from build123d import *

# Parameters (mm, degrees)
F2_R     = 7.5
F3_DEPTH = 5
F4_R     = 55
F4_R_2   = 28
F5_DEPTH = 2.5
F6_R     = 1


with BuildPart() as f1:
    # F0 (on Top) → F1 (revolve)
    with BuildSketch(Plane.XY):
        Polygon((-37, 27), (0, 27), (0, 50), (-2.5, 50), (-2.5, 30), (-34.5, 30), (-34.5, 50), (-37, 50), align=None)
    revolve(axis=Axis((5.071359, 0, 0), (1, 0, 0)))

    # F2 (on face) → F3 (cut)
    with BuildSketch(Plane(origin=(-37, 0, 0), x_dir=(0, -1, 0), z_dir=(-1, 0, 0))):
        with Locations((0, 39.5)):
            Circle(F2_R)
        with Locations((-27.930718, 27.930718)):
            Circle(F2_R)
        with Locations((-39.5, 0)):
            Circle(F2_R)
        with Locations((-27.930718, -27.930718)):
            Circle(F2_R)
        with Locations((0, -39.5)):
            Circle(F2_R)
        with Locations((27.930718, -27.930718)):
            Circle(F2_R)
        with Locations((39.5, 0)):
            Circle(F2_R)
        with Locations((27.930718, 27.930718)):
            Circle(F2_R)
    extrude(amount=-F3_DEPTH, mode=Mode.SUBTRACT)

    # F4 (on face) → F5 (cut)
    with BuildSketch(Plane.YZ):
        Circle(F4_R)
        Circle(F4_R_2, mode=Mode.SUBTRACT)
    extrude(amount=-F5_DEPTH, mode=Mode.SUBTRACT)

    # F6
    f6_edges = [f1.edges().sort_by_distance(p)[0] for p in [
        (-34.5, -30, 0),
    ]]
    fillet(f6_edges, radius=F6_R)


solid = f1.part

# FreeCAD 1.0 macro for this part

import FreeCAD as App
import Part
import Sketcher

V = App.Vector


def edges_at(feature, points):
    """Names of the edges that pass closest to the given points."""
    edges = feature.Shape.Edges
    near = lambda p: min(range(len(edges)), key=lambda i: edges[i].distToShape(Part.Vertex(*p))[0])
    return sorted({f"Edge{near(p) + 1}" for p in points})

doc = App.newDocument("Part")
params = doc.addObject("Spreadsheet::Sheet", "Params")
for row, (alias, value) in enumerate([
    ("sketch1_width", "37 mm"),
    ("sketch1_width2", "32 mm"),
    ("sketch1_height", "23 mm"),
    ("sketch1_height2", "20 mm"),
    ("revolution_angle", "360 deg"),
    ("sketch2_diameter", "15 mm"),
    ("pocket1_length", "5 mm"),
    ("sketch3_diameter", "110 mm"),
    ("sketch3_diameter2", "56 mm"),
    ("pocket2_length", "2.5 mm"),
    ("fillet_radius", "1 mm"),
], start=1):
    params.set(f"A{row}", alias)
    params.set(f"B{row}", "=" + value)
    params.setAlias(f"B{row}", alias)

body = doc.addObject("PartDesign::Body", "Body")

# Sketch on XY plane
sketch1 = body.newObject("Sketcher::SketchObject", "Sketch")
sketch1.AttachmentSupport = (doc.getObject("XY_Plane"), [""])
sketch1.MapMode = "FlatFace"
sketch1.addGeometry(Part.LineSegment(V(-37, 27, 0), V(0, 27, 0)), False)
sketch1.addGeometry(Part.LineSegment(V(0, 27, 0), V(0, 50, 0)), False)
sketch1.addGeometry(Part.LineSegment(V(0, 50, 0), V(-2.5, 50, 0)), False)
sketch1.addGeometry(Part.LineSegment(V(-2.5, 50, 0), V(-2.5, 30, 0)), False)
sketch1.addGeometry(Part.LineSegment(V(-2.5, 30, 0), V(-34.5, 30, 0)), False)
sketch1.addGeometry(Part.LineSegment(V(-34.5, 30, 0), V(-34.5, 50, 0)), False)
sketch1.addGeometry(Part.LineSegment(V(-34.5, 50, 0), V(-37, 50, 0)), False)
sketch1.addGeometry(Part.LineSegment(V(-37, 50, 0), V(-37, 27, 0)), False)
sketch1.addConstraint(Sketcher.Constraint("Coincident", 0, 2, 1, 1))
sketch1.addConstraint(Sketcher.Constraint("Coincident", 1, 2, 2, 1))
sketch1.addConstraint(Sketcher.Constraint("Coincident", 2, 2, 3, 1))
sketch1.addConstraint(Sketcher.Constraint("Coincident", 3, 2, 4, 1))
sketch1.addConstraint(Sketcher.Constraint("Coincident", 4, 2, 5, 1))
sketch1.addConstraint(Sketcher.Constraint("Coincident", 5, 2, 6, 1))
sketch1.addConstraint(Sketcher.Constraint("Coincident", 6, 2, 7, 1))
sketch1.addConstraint(Sketcher.Constraint("Coincident", 7, 2, 0, 1))
sketch1.addConstraint(Sketcher.Constraint("Horizontal", 0))
sketch1.addConstraint(Sketcher.Constraint("Vertical", 1))
sketch1.addConstraint(Sketcher.Constraint("Horizontal", 2))
sketch1.addConstraint(Sketcher.Constraint("Vertical", 3))
sketch1.addConstraint(Sketcher.Constraint("Horizontal", 4))
sketch1.addConstraint(Sketcher.Constraint("Vertical", 5))
sketch1.addConstraint(Sketcher.Constraint("Horizontal", 6))
sketch1.addConstraint(Sketcher.Constraint("Vertical", 7))
sketch1.addConstraint(Sketcher.Constraint("PointOnObject", 0, 2, -2))
sketch1.addConstraint(Sketcher.Constraint("Horizontal", 2, 2, 5, 2))
sketch1.addConstraint(Sketcher.Constraint("Equal", 2, 6))
sketch1.addConstraint(Sketcher.Constraint("DistanceX", 0, 1, 0, 2, 37.0))
sketch1.addConstraint(Sketcher.Constraint("DistanceX", 4, 2, 4, 1, 32.0))
sketch1.addConstraint(Sketcher.Constraint("DistanceY", 1, 1, 1, 2, 23.0))
sketch1.addConstraint(Sketcher.Constraint("DistanceY", 3, 2, 3, 1, 20.0))
sketch1.addConstraint(Sketcher.Constraint("DistanceY", -1, 1, 0, 2, 27.0))
sketch1.setExpression("Constraints[19]", "Params.sketch1_width")
sketch1.setExpression("Constraints[20]", "Params.sketch1_width2")
sketch1.setExpression("Constraints[21]", "Params.sketch1_height")
sketch1.setExpression("Constraints[22]", "Params.sketch1_height2")
revolution = body.newObject("PartDesign::Revolution", "Revolution")
revolution.Profile = sketch1
revolution.ReferenceAxis = (sketch1, ["H_Axis"])
revolution.setExpression("Angle", "Params.revolution_angle")

# Sketch on YZ plane
sketch2 = body.newObject("Sketcher::SketchObject", "Sketch001")
sketch2.AttachmentSupport = (doc.getObject("YZ_Plane"), [""])
sketch2.MapMode = "FlatFace"
sketch2.AttachmentOffset = App.Placement(V(0, 0, -37), App.Rotation())
sketch2.addGeometry(Part.Circle(V(0, 40, 0), V(0, 0, 1), 8), False)
sketch2.addGeometry(Part.Circle(V(28, 28, 0), V(0, 0, 1), 8), False)
sketch2.addGeometry(Part.Circle(V(40, 0, 0), V(0, 0, 1), 8), False)
sketch2.addGeometry(Part.Circle(V(28, -28, 0), V(0, 0, 1), 8), False)
sketch2.addGeometry(Part.Circle(V(0, -40, 0), V(0, 0, 1), 8), False)
sketch2.addGeometry(Part.Circle(V(-28, -28, 0), V(0, 0, 1), 8), False)
sketch2.addGeometry(Part.Circle(V(-40, 0, 0), V(0, 0, 1), 8), False)
sketch2.addGeometry(Part.Circle(V(-28, 28, 0), V(0, 0, 1), 8), False)
sketch2.addConstraint(Sketcher.Constraint("Equal", 0, 1))
sketch2.addConstraint(Sketcher.Constraint("Equal", 1, 2))
sketch2.addConstraint(Sketcher.Constraint("Equal", 2, 3))
sketch2.addConstraint(Sketcher.Constraint("Equal", 3, 4))
sketch2.addConstraint(Sketcher.Constraint("Equal", 4, 5))
sketch2.addConstraint(Sketcher.Constraint("Equal", 5, 6))
sketch2.addConstraint(Sketcher.Constraint("Equal", 6, 7))
sketch2.addConstraint(Sketcher.Constraint("Symmetric", 0, 3, 4, 3, -1, 1))
sketch2.addConstraint(Sketcher.Constraint("Symmetric", 1, 3, 5, 3, -1, 1))
sketch2.addConstraint(Sketcher.Constraint("Symmetric", 2, 3, 6, 3, -1, 1))
sketch2.addConstraint(Sketcher.Constraint("Symmetric", 3, 3, 7, 3, -1, 1))
sketch2.addConstraint(Sketcher.Constraint("Symmetric", 3, 3, 5, 3, -2))
sketch2.addConstraint(Sketcher.Constraint("PointOnObject", 0, 3, -2))
sketch2.addConstraint(Sketcher.Constraint("PointOnObject", 2, 3, -1))
sketch2.addConstraint(Sketcher.Constraint("Diameter", 0, 15.0))
sketch2.addConstraint(Sketcher.Constraint("DistanceY", 4, 3, 0, 3, 79.0))
sketch2.addConstraint(Sketcher.Constraint("DistanceX", -1, 1, 2, 3, 39.5))
sketch2.addConstraint(Sketcher.Constraint("DistanceY", 3, 3, 0, 3, 67.430718))
sketch2.addConstraint(Sketcher.Constraint("DistanceX", 5, 3, 2, 3, 67.430718))
sketch2.setExpression("Constraints[14]", "Params.sketch2_diameter")
pocket1 = body.newObject("PartDesign::Pocket", "Pocket")
pocket1.Profile = sketch2
pocket1.setExpression("Length", "Params.pocket1_length")
pocket1.Reversed = True

# Sketch on YZ plane
sketch3 = body.newObject("Sketcher::SketchObject", "Sketch002")
sketch3.AttachmentSupport = (doc.getObject("YZ_Plane"), [""])
sketch3.MapMode = "FlatFace"
sketch3.addGeometry(Part.Circle(V(0, 0, 0), V(0, 0, 1), 55), False)
sketch3.addGeometry(Part.Circle(V(0, 0, 0), V(0, 0, 1), 28), False)
sketch3.addConstraint(Sketcher.Constraint("Coincident", 0, 3, -1, 1))
sketch3.addConstraint(Sketcher.Constraint("Coincident", 1, 3, -1, 1))
sketch3.addConstraint(Sketcher.Constraint("Diameter", 0, 110.0))
sketch3.addConstraint(Sketcher.Constraint("Diameter", 1, 56.0))
sketch3.setExpression("Constraints[2]", "Params.sketch3_diameter")
sketch3.setExpression("Constraints[3]", "Params.sketch3_diameter2")
pocket2 = body.newObject("PartDesign::Pocket", "Pocket001")
pocket2.Profile = sketch3
pocket2.setExpression("Length", "Params.pocket2_length")
doc.recompute()

fillet = body.newObject("PartDesign::Fillet", "Fillet")
fillet.Base = (pocket2, edges_at(pocket2, [(-34.5, -30, 0)]))
fillet.setExpression("Radius", "Params.fillet_radius")

doc.recompute()
